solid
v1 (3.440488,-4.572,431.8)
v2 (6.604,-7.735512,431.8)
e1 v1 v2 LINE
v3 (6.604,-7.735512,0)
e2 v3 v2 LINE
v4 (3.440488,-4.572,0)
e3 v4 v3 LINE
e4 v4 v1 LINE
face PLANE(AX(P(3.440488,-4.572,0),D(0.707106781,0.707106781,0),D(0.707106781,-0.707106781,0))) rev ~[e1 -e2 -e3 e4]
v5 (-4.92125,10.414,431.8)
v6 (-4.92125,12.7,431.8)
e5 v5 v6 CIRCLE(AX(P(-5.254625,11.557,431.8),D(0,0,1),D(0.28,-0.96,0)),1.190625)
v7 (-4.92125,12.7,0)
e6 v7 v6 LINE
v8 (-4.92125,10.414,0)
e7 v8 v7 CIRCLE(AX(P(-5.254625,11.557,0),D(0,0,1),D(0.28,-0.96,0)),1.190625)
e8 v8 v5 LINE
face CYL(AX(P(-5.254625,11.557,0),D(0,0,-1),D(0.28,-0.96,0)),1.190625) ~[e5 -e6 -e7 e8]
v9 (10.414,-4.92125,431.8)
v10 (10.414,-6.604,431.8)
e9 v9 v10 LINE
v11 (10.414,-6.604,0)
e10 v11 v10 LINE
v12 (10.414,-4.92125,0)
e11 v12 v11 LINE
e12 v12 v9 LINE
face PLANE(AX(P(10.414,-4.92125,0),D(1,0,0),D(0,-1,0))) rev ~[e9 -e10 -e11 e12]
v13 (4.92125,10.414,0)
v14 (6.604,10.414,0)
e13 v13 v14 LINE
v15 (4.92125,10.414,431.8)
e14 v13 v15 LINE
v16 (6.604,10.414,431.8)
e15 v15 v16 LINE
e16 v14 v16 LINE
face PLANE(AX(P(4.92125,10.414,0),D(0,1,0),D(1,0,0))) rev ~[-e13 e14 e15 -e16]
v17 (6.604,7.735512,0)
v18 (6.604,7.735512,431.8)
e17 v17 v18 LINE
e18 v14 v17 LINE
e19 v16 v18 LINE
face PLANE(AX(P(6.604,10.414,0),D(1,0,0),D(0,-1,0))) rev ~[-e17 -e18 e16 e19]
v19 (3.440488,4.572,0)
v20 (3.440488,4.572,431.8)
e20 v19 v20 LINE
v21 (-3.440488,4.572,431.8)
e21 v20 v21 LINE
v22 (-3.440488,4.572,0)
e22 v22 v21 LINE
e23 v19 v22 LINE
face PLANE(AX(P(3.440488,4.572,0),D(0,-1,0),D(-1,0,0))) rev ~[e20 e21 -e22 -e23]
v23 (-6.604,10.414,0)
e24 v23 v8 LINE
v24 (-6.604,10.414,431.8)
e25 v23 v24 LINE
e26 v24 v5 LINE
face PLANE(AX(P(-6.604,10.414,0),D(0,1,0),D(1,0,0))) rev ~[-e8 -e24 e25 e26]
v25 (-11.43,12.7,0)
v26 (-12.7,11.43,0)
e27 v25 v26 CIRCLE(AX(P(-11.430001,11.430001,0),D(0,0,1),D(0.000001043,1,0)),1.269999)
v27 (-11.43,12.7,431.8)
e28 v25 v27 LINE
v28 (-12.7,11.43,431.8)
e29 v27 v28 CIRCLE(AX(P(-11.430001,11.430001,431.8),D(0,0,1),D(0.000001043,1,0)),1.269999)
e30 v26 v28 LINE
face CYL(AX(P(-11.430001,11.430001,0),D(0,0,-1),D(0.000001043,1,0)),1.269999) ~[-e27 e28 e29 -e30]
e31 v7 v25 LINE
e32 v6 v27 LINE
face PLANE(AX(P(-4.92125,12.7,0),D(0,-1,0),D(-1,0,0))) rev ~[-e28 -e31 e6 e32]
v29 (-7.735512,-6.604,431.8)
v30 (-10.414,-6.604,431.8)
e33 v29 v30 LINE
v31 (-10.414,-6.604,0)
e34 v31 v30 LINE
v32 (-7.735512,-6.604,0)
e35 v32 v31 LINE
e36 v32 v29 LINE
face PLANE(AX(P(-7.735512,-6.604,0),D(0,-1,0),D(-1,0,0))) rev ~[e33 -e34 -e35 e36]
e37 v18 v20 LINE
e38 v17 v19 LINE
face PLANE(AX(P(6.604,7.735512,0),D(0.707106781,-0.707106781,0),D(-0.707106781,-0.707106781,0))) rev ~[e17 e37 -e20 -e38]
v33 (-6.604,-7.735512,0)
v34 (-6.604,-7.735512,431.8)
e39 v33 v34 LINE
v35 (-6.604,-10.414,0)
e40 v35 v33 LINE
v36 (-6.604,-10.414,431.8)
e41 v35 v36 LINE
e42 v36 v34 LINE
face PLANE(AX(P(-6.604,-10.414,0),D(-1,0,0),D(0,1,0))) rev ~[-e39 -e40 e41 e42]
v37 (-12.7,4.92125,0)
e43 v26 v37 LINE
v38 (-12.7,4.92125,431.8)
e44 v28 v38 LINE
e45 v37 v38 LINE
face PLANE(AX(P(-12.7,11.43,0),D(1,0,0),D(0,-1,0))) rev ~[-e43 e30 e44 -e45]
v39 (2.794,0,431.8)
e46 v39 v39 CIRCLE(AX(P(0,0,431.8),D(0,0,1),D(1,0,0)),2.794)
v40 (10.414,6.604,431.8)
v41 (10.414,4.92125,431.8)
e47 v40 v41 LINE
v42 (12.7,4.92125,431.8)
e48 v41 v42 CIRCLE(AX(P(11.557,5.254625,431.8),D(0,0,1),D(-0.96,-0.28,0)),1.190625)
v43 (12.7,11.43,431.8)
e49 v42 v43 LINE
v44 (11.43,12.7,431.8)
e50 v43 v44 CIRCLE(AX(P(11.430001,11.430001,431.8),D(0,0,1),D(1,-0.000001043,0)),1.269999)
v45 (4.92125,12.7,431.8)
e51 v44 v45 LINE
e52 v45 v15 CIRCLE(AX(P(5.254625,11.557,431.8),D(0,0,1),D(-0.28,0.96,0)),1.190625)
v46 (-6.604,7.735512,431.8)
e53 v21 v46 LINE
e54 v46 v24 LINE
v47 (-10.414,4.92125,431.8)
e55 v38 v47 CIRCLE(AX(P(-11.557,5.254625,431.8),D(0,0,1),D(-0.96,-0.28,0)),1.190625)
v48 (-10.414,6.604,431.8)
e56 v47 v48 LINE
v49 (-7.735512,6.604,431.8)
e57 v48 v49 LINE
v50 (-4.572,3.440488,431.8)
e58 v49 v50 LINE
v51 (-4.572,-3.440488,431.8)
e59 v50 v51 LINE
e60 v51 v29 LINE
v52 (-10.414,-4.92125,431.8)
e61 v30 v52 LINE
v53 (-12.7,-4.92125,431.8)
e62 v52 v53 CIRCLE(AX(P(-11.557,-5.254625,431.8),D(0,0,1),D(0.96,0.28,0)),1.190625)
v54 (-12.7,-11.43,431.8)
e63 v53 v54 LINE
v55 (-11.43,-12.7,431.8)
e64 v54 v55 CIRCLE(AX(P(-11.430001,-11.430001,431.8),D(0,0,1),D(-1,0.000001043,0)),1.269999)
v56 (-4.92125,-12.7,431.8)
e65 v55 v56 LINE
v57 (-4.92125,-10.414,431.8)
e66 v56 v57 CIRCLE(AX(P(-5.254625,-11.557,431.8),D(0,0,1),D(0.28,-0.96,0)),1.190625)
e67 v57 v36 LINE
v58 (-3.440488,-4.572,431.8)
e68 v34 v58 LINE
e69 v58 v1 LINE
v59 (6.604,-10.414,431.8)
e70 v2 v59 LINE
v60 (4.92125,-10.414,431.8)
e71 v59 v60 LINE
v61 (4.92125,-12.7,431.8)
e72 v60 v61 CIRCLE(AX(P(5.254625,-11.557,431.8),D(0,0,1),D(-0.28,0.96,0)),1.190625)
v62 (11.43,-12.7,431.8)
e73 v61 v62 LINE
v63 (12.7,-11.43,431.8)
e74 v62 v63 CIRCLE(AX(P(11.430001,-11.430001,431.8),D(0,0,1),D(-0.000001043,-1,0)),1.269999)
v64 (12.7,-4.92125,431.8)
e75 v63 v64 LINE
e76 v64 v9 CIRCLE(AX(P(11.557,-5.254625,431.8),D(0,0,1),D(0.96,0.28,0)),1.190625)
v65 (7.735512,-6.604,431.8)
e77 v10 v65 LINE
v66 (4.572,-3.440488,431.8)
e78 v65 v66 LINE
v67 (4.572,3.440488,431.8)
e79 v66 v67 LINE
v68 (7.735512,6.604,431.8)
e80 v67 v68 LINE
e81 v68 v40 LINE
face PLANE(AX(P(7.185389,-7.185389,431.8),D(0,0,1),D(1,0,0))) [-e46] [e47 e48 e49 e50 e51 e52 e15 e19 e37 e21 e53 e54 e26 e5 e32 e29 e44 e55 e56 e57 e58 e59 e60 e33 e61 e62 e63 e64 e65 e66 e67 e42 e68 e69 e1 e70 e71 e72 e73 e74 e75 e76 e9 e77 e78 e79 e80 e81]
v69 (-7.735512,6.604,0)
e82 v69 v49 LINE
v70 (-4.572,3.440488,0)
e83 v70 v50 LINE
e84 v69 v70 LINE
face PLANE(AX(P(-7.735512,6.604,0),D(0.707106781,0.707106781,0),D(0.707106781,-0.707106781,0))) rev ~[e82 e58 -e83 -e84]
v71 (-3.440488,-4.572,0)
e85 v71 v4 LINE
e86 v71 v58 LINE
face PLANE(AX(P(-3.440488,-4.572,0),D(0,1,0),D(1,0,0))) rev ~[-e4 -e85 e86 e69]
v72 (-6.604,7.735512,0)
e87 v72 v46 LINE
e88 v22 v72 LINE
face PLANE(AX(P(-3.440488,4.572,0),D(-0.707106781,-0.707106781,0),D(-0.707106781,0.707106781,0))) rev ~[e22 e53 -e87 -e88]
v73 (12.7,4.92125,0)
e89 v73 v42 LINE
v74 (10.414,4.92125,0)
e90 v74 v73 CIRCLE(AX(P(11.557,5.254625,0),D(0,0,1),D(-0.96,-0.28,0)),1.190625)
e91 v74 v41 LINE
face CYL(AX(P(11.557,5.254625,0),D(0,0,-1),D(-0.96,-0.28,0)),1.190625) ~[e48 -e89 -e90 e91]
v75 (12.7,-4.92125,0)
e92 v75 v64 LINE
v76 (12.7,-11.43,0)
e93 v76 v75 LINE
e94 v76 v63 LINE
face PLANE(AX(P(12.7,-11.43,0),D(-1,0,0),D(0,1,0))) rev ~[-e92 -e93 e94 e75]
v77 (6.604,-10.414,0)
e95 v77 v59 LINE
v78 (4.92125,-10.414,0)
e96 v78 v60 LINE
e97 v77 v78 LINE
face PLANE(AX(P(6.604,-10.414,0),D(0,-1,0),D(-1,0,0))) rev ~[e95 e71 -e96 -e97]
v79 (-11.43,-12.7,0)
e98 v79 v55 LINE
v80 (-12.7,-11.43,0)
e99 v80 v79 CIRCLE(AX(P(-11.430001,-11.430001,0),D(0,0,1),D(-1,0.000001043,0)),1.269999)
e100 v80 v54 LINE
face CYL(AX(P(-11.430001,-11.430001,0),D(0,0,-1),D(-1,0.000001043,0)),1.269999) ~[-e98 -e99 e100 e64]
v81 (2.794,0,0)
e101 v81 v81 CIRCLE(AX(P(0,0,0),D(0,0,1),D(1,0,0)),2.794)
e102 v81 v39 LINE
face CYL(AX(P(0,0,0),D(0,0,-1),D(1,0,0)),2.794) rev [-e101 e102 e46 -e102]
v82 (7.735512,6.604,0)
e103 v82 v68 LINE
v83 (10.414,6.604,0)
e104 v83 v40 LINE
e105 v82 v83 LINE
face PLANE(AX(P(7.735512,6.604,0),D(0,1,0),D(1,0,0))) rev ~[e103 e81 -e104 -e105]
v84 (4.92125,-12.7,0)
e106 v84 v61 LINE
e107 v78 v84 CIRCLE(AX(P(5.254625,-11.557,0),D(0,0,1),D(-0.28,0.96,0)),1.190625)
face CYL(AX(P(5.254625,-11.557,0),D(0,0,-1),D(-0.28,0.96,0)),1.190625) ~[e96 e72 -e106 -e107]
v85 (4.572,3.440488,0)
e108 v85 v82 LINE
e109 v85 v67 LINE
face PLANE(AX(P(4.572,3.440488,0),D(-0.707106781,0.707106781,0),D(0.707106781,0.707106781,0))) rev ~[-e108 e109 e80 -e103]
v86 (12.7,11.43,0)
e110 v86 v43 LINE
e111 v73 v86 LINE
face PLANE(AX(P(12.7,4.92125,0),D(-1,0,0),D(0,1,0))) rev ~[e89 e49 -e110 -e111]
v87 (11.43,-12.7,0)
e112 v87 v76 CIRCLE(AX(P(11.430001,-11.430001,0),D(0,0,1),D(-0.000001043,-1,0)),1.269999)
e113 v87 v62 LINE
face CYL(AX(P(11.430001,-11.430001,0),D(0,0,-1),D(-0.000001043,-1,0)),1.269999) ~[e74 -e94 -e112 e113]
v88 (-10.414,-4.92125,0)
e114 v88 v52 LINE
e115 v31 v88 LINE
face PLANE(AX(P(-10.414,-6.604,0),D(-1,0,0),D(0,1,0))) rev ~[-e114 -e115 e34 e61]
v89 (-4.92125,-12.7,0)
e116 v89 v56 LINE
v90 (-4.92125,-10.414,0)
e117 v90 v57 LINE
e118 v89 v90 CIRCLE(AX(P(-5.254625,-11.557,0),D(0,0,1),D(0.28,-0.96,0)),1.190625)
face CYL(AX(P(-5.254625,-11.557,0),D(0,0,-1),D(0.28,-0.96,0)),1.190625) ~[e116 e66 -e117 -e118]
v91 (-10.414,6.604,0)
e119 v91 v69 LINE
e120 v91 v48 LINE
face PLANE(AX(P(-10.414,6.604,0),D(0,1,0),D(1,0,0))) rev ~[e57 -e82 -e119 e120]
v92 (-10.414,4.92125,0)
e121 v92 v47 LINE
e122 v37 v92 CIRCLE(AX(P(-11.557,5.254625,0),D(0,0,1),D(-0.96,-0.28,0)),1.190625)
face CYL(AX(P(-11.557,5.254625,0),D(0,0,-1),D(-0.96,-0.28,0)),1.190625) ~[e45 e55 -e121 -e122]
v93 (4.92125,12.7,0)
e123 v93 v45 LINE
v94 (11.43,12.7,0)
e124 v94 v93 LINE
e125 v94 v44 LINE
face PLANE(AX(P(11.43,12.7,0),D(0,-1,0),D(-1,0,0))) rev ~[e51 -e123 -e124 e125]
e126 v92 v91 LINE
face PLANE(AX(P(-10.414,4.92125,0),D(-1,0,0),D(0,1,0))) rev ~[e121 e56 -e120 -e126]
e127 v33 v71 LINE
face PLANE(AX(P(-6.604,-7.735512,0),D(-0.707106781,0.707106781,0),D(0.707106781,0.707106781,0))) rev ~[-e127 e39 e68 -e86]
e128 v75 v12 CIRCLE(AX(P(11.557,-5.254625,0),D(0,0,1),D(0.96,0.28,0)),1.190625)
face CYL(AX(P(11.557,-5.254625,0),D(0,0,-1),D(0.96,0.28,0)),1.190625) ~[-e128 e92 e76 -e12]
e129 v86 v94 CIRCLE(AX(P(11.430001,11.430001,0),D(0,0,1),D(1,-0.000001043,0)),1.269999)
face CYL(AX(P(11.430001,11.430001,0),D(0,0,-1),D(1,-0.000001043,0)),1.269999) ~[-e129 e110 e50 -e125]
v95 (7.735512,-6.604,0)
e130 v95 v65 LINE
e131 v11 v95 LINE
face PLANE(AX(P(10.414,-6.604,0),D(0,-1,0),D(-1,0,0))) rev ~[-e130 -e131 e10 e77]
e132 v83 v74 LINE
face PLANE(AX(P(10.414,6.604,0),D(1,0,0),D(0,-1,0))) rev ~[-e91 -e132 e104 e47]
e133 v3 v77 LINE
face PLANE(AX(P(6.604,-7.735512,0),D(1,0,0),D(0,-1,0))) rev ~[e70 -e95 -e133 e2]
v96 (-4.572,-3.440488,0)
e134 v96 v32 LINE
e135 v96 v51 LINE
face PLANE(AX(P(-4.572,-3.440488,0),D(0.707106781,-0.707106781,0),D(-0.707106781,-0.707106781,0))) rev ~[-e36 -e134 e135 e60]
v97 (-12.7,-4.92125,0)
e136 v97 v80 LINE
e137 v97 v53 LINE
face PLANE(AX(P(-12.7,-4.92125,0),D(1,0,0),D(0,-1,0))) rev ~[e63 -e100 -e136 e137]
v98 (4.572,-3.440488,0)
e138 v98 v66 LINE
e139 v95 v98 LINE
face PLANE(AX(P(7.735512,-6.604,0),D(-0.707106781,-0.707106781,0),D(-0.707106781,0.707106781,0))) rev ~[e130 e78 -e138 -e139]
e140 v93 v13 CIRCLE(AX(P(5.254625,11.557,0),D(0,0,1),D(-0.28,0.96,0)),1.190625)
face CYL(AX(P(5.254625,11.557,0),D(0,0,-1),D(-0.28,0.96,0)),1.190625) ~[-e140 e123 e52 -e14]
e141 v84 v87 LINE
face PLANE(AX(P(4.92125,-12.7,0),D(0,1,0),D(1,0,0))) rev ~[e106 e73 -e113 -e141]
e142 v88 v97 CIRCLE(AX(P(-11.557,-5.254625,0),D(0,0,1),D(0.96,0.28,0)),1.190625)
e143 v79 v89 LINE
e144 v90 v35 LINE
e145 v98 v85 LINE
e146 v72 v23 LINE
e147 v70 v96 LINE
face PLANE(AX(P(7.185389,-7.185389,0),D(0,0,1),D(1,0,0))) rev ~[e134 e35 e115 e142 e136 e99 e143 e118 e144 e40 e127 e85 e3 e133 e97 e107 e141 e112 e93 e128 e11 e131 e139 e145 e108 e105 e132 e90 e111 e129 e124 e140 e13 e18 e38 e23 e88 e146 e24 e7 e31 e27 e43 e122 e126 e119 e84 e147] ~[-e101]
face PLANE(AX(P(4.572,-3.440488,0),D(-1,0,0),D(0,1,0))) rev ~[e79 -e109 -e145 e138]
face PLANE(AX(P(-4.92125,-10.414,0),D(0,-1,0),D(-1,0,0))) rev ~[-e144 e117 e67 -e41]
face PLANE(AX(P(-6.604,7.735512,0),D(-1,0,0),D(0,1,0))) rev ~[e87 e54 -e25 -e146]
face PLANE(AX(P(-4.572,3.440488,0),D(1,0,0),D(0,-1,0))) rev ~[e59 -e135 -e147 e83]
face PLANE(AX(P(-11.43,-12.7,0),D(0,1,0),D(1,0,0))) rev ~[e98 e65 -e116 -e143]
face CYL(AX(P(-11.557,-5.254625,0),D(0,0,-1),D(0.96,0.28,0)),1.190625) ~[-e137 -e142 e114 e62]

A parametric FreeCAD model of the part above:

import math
import FreeCAD as App
import Part
import Sketcher

V = App.Vector
Q = App.Units.Quantity

doc = App.newDocument("Part")
body = doc.addObject("PartDesign::Body", "Body")

# Sketch on XY plane
sketch1 = body.newObject("Sketcher::SketchObject", "Sketch")
sketch1.AttachmentSupport = (doc.getObject("XY_Plane"), [""])
sketch1.MapMode = "FlatFace"
sketch1.addGeometry([
    Part.LineSegment(V(3.4, -4.6, 0), V(6.6, -7.7, 0)),  # 0
    Part.LineSegment(V(6.6, -7.7, 0), V(6.6, -10.4, 0)),  # 1
    Part.LineSegment(V(6.6, -10.4, 0), V(4.9, -10.4, 0)),  # 2
    Part.ArcOfCircle(Part.Circle(V(5.3, -11.6, 0), V(0, 0, 1), 1.2), math.radians(106), math.radians(254)),  # 3
    Part.LineSegment(V(4.9, -12.7, 0), V(11.4, -12.7, 0)),  # 4
    Part.ArcOfCircle(Part.Circle(V(11.4, -11.4, 0), V(0, 0, 1), 1.3), math.radians(-90), math.radians(0)),  # 5
    Part.LineSegment(V(12.7, -11.4, 0), V(12.7, -4.9, 0)),  # 6
    Part.ArcOfCircle(Part.Circle(V(11.6, -5.3, 0), V(0, 0, 1), 1.2), math.radians(16), math.radians(164)),  # 7
    Part.LineSegment(V(10.4, -4.9, 0), V(10.4, -6.6, 0)),  # 8
    Part.LineSegment(V(10.4, -6.6, 0), V(7.7, -6.6, 0)),  # 9
    Part.LineSegment(V(7.7, -6.6, 0), V(4.6, -3.4, 0)),  # 10
    Part.LineSegment(V(4.6, -3.4, 0), V(4.6, 3.4, 0)),  # 11
    Part.LineSegment(V(4.6, 3.4, 0), V(7.7, 6.6, 0)),  # 12
    Part.LineSegment(V(7.7, 6.6, 0), V(10.4, 6.6, 0)),  # 13
    Part.LineSegment(V(10.4, 6.6, 0), V(10.4, 4.9, 0)),  # 14
    Part.ArcOfCircle(Part.Circle(V(11.6, 5.3, 0), V(0, 0, 1), 1.2), math.radians(-164), math.radians(-16)),  # 15
    Part.LineSegment(V(12.7, 4.9, 0), V(12.7, 11.4, 0)),  # 16
    Part.ArcOfCircle(Part.Circle(V(11.4, 11.4, 0), V(0, 0, 1), 1.3), math.radians(0), math.radians(90)),  # 17
    Part.LineSegment(V(11.4, 12.7, 0), V(4.9, 12.7, 0)),  # 18
    Part.ArcOfCircle(Part.Circle(V(5.3, 11.6, 0), V(0, 0, 1), 1.2), math.radians(106), math.radians(254)),  # 19
    Part.LineSegment(V(4.9, 10.4, 0), V(6.6, 10.4, 0)),  # 20
    Part.LineSegment(V(6.6, 10.4, 0), V(6.6, 7.7, 0)),  # 21
    Part.LineSegment(V(6.6, 7.7, 0), V(3.4, 4.6, 0)),  # 22
    Part.LineSegment(V(3.4, 4.6, 0), V(-3.4, 4.6, 0)),  # 23
    Part.LineSegment(V(-3.4, 4.6, 0), V(-6.6, 7.7, 0)),  # 24
    Part.LineSegment(V(-6.6, 7.7, 0), V(-6.6, 10.4, 0)),  # 25
    Part.LineSegment(V(-6.6, 10.4, 0), V(-4.9, 10.4, 0)),  # 26
    Part.ArcOfCircle(Part.Circle(V(-5.3, 11.6, 0), V(0, 0, 1), 1.2), math.radians(-74), math.radians(74)),  # 27
    Part.LineSegment(V(-4.9, 12.7, 0), V(-11.4, 12.7, 0)),  # 28
    Part.ArcOfCircle(Part.Circle(V(-11.4, 11.4, 0), V(0, 0, 1), 1.3), math.radians(90), math.radians(180)),  # 29
    Part.LineSegment(V(-12.7, 11.4, 0), V(-12.7, 4.9, 0)),  # 30
    Part.ArcOfCircle(Part.Circle(V(-11.6, 5.3, 0), V(0, 0, 1), 1.2), math.radians(-164), math.radians(-16)),  # 31
    Part.LineSegment(V(-10.4, 4.9, 0), V(-10.4, 6.6, 0)),  # 32
    Part.LineSegment(V(-10.4, 6.6, 0), V(-7.7, 6.6, 0)),  # 33
    Part.LineSegment(V(-7.7, 6.6, 0), V(-4.6, 3.4, 0)),  # 34
    Part.LineSegment(V(-4.6, 3.4, 0), V(-4.6, -3.4, 0)),  # 35
    Part.LineSegment(V(-4.6, -3.4, 0), V(-7.7, -6.6, 0)),  # 36
    Part.LineSegment(V(-7.7, -6.6, 0), V(-10.4, -6.6, 0)),  # 37
    Part.LineSegment(V(-10.4, -6.6, 0), V(-10.4, -4.9, 0)),  # 38
    Part.ArcOfCircle(Part.Circle(V(-11.6, -5.3, 0), V(0, 0, 1), 1.2), math.radians(16), math.radians(164)),  # 39
    Part.LineSegment(V(-12.7, -4.9, 0), V(-12.7, -11.4, 0)),  # 40
    Part.ArcOfCircle(Part.Circle(V(-11.4, -11.4, 0), V(0, 0, 1), 1.3), math.radians(180), math.radians(270)),  # 41
    Part.LineSegment(V(-11.4, -12.7, 0), V(-4.9, -12.7, 0)),  # 42
    Part.ArcOfCircle(Part.Circle(V(-5.3, -11.6, 0), V(0, 0, 1), 1.2), math.radians(-74), math.radians(74)),  # 43
    Part.LineSegment(V(-4.9, -10.4, 0), V(-6.6, -10.4, 0)),  # 44
    Part.LineSegment(V(-6.6, -10.4, 0), V(-6.6, -7.7, 0)),  # 45
    Part.LineSegment(V(-6.6, -7.7, 0), V(-3.4, -4.6, 0)),  # 46
    Part.LineSegment(V(-3.4, -4.6, 0), V(3.4, -4.6, 0)),  # 47
    Part.Circle(V(0, 0, 0), V(0, 0, 1), 2.8),  # 48
], False)
sketch1.addConstraint([
    Sketcher.Constraint("Coincident", 0, 2, 1, 1),
    Sketcher.Constraint("Coincident", 1, 2, 2, 1),
    Sketcher.Constraint("Coincident", 2, 2, 3, 1),
    Sketcher.Constraint("Coincident", 3, 2, 4, 1),
    Sketcher.Constraint("Tangent", 4, 2, 5, 1),
    Sketcher.Constraint("Tangent", 5, 2, 6, 1),
    Sketcher.Constraint("Coincident", 6, 2, 7, 1),
    Sketcher.Constraint("Coincident", 7, 2, 8, 1),
    Sketcher.Constraint("Coincident", 8, 2, 9, 1),
    Sketcher.Constraint("Coincident", 9, 2, 10, 1),
    Sketcher.Constraint("Coincident", 10, 2, 11, 1),
    Sketcher.Constraint("Coincident", 11, 2, 12, 1),
    Sketcher.Constraint("Coincident", 12, 2, 13, 1),
    Sketcher.Constraint("Coincident", 13, 2, 14, 1),
    Sketcher.Constraint("Coincident", 14, 2, 15, 1),
    Sketcher.Constraint("Coincident", 15, 2, 16, 1),
    Sketcher.Constraint("Tangent", 16, 2, 17, 1),
    Sketcher.Constraint("Tangent", 17, 2, 18, 1),
    Sketcher.Constraint("Coincident", 18, 2, 19, 1),
    Sketcher.Constraint("Coincident", 19, 2, 20, 1),
    Sketcher.Constraint("Coincident", 20, 2, 21, 1),
    Sketcher.Constraint("Coincident", 21, 2, 22, 1),
    Sketcher.Constraint("Coincident", 22, 2, 23, 1),
    Sketcher.Constraint("Coincident", 23, 2, 24, 1),
    Sketcher.Constraint("Coincident", 24, 2, 25, 1),
    Sketcher.Constraint("Coincident", 25, 2, 26, 1),
    Sketcher.Constraint("Coincident", 26, 2, 27, 1),
    Sketcher.Constraint("Coincident", 27, 2, 28, 1),
    Sketcher.Constraint("Tangent", 28, 2, 29, 1),
    Sketcher.Constraint("Tangent", 29, 2, 30, 1),
    Sketcher.Constraint("Coincident", 30, 2, 31, 1),
    Sketcher.Constraint("Coincident", 31, 2, 32, 1),
    Sketcher.Constraint("Coincident", 32, 2, 33, 1),
    Sketcher.Constraint("Coincident", 33, 2, 34, 1),
    Sketcher.Constraint("Coincident", 34, 2, 35, 1),
    Sketcher.Constraint("Coincident", 35, 2, 36, 1),
    Sketcher.Constraint("Coincident", 36, 2, 37, 1),
    Sketcher.Constraint("Coincident", 37, 2, 38, 1),
    Sketcher.Constraint("Coincident", 38, 2, 39, 1),
    Sketcher.Constraint("Coincident", 39, 2, 40, 1),
    Sketcher.Constraint("Tangent", 40, 2, 41, 1),
    Sketcher.Constraint("Tangent", 41, 2, 42, 1),
    Sketcher.Constraint("Coincident", 42, 2, 43, 1),
    Sketcher.Constraint("Coincident", 43, 2, 44, 1),
    Sketcher.Constraint("Coincident", 44, 2, 45, 1),
    Sketcher.Constraint("Coincident", 45, 2, 46, 1),
    Sketcher.Constraint("Coincident", 46, 2, 47, 1),
    Sketcher.Constraint("Coincident", 47, 2, 0, 1),
    Sketcher.Constraint("Vertical", 1),
    Sketcher.Constraint("Horizontal", 2),
    Sketcher.Constraint("Horizontal", 4),
    Sketcher.Constraint("Vertical", 6),
    Sketcher.Constraint("Vertical", 8),
    Sketcher.Constraint("Horizontal", 9),
    Sketcher.Constraint("Vertical", 11),
    Sketcher.Constraint("Horizontal", 13),
    Sketcher.Constraint("Vertical", 14),
    Sketcher.Constraint("Vertical", 16),
    Sketcher.Constraint("Horizontal", 18),
    Sketcher.Constraint("Horizontal", 20),
    Sketcher.Constraint("Vertical", 21),
    Sketcher.Constraint("Horizontal", 23),
    Sketcher.Constraint("Vertical", 25),
    Sketcher.Constraint("Horizontal", 26),
    Sketcher.Constraint("Horizontal", 28),
    Sketcher.Constraint("Vertical", 30),
    Sketcher.Constraint("Vertical", 32),
    Sketcher.Constraint("Horizontal", 33),
    Sketcher.Constraint("Vertical", 35),
    Sketcher.Constraint("Horizontal", 37),
    Sketcher.Constraint("Vertical", 38),
    Sketcher.Constraint("Vertical", 40),
    Sketcher.Constraint("Horizontal", 42),
    Sketcher.Constraint("Horizontal", 44),
    Sketcher.Constraint("Vertical", 45),
    Sketcher.Constraint("Horizontal", 47),
    Sketcher.Constraint("Coincident", 48, 3, -1, 1),
    Sketcher.Constraint("Equal", 3, 7),
    Sketcher.Constraint("Equal", 7, 15),
    Sketcher.Constraint("Equal", 5, 17),
    Sketcher.Constraint("Equal", 15, 19),
    Sketcher.Constraint("Equal", 19, 27),
    Sketcher.Constraint("Equal", 17, 29),
    Sketcher.Constraint("Equal", 27, 31),
    Sketcher.Constraint("Equal", 31, 39),
    Sketcher.Constraint("Equal", 29, 41),
    Sketcher.Constraint("Equal", 39, 43),
    Sketcher.Constraint("Symmetric", 3, 3, 27, 3, -1, 1),
    Sketcher.Constraint("Symmetric", 5, 3, 29, 3, -1, 1),
    Sketcher.Constraint("Symmetric", 7, 3, 31, 3, -1, 1),
    Sketcher.Constraint("Symmetric", 15, 3, 39, 3, -1, 1),
    Sketcher.Constraint("Symmetric", 17, 3, 41, 3, -1, 1),
    Sketcher.Constraint("Symmetric", 19, 3, 43, 3, -1, 1),
    Sketcher.Constraint("Symmetric", 0, 2, 24, 2, -1, 1),
    Sketcher.Constraint("Symmetric", 8, 2, 32, 2, -1, 1),
    Sketcher.Constraint("Symmetric", 10, 2, 34, 2, -1, 1),
    Sketcher.Constraint("Symmetric", 12, 2, 36, 2, -1, 1),
    Sketcher.Constraint("Symmetric", 20, 2, 44, 2, -1, 1),
    Sketcher.Constraint("Symmetric", 22, 2, 46, 2, -1, 1),
    Sketcher.Constraint("Symmetric", 19, 3, 27, 3, -2),
    Sketcher.Constraint("Symmetric", 17, 3, 29, 3, -2),
    Sketcher.Constraint("Symmetric", 15, 3, 31, 3, -2),
    Sketcher.Constraint("Symmetric", 21, 2, 24, 2, -2),
    Sketcher.Constraint("Symmetric", 13, 2, 32, 2, -2),
    Sketcher.Constraint("Parallel", 0, 10),
    Sketcher.Constraint("Perpendicular", 10, 12),
    Sketcher.Constraint("Parallel", 12, 22),
    Sketcher.Constraint("Perpendicular", 22, 24),
    Sketcher.Constraint("Parallel", 24, 34),
    Sketcher.Constraint("Perpendicular", 34, 36),
    Sketcher.Constraint("Parallel", 36, 46),
    Sketcher.Constraint("Horizontal", 6, 2, 7, 2),
    Sketcher.Constraint("Horizontal", 20, 2, 25, 2),
    Sketcher.Constraint("Horizontal", 11, 2, 34, 2),
    Sketcher.Constraint("Horizontal", 7, 2, 38, 2),
    Sketcher.Constraint("Horizontal", 2, 2, 43, 2),
    Sketcher.Constraint("Vertical", 2, 2, 3, 2),
    Sketcher.Constraint("Vertical", 9, 2, 12, 2),
    Sketcher.Constraint("Equal", 37, 1),
    Sketcher.Constraint("Equal", 42, 6),
    Sketcher.Constraint("Equal", 44, 8),
    Sketcher.Constraint("Equal", 47, 11),
    Sketcher.Constraint("Equal", 0, 10),
    Sketcher.Constraint("Diameter", 48, Q("0.22 in")),
    Sketcher.Constraint("Radius", 5, Q("0.0499999 in")),
    Sketcher.Constraint("Radius", 3, Q("0.046875 in")),
    Sketcher.Constraint("DistanceY", 3, 2, -1, 1, Q("0.5 in")),
    Sketcher.Constraint("DistanceX", -1, 1, 0, 2, Q("0.26 in")),
    Sketcher.Constraint("DistanceY", 1, 2, -1, 1, Q("0.41 in")),
    Sketcher.Constraint("DistanceX", -1, 1, 7, 2, Q("0.41 in")),
    Sketcher.Constraint("DistanceX", -1, 1, 10, 2, Q("0.18 in")),
    Sketcher.Constraint("DistanceX", 2, 2, 2, 1, Q("1.68275 mm")),
    Sketcher.Constraint("Distance", 0, Q("4.473882 mm")),
])
pad1 = body.newObject("PartDesign::Pad", "Pad")
pad1.Profile = sketch1
pad1.Length = Q("17 in")

doc.recompute()
